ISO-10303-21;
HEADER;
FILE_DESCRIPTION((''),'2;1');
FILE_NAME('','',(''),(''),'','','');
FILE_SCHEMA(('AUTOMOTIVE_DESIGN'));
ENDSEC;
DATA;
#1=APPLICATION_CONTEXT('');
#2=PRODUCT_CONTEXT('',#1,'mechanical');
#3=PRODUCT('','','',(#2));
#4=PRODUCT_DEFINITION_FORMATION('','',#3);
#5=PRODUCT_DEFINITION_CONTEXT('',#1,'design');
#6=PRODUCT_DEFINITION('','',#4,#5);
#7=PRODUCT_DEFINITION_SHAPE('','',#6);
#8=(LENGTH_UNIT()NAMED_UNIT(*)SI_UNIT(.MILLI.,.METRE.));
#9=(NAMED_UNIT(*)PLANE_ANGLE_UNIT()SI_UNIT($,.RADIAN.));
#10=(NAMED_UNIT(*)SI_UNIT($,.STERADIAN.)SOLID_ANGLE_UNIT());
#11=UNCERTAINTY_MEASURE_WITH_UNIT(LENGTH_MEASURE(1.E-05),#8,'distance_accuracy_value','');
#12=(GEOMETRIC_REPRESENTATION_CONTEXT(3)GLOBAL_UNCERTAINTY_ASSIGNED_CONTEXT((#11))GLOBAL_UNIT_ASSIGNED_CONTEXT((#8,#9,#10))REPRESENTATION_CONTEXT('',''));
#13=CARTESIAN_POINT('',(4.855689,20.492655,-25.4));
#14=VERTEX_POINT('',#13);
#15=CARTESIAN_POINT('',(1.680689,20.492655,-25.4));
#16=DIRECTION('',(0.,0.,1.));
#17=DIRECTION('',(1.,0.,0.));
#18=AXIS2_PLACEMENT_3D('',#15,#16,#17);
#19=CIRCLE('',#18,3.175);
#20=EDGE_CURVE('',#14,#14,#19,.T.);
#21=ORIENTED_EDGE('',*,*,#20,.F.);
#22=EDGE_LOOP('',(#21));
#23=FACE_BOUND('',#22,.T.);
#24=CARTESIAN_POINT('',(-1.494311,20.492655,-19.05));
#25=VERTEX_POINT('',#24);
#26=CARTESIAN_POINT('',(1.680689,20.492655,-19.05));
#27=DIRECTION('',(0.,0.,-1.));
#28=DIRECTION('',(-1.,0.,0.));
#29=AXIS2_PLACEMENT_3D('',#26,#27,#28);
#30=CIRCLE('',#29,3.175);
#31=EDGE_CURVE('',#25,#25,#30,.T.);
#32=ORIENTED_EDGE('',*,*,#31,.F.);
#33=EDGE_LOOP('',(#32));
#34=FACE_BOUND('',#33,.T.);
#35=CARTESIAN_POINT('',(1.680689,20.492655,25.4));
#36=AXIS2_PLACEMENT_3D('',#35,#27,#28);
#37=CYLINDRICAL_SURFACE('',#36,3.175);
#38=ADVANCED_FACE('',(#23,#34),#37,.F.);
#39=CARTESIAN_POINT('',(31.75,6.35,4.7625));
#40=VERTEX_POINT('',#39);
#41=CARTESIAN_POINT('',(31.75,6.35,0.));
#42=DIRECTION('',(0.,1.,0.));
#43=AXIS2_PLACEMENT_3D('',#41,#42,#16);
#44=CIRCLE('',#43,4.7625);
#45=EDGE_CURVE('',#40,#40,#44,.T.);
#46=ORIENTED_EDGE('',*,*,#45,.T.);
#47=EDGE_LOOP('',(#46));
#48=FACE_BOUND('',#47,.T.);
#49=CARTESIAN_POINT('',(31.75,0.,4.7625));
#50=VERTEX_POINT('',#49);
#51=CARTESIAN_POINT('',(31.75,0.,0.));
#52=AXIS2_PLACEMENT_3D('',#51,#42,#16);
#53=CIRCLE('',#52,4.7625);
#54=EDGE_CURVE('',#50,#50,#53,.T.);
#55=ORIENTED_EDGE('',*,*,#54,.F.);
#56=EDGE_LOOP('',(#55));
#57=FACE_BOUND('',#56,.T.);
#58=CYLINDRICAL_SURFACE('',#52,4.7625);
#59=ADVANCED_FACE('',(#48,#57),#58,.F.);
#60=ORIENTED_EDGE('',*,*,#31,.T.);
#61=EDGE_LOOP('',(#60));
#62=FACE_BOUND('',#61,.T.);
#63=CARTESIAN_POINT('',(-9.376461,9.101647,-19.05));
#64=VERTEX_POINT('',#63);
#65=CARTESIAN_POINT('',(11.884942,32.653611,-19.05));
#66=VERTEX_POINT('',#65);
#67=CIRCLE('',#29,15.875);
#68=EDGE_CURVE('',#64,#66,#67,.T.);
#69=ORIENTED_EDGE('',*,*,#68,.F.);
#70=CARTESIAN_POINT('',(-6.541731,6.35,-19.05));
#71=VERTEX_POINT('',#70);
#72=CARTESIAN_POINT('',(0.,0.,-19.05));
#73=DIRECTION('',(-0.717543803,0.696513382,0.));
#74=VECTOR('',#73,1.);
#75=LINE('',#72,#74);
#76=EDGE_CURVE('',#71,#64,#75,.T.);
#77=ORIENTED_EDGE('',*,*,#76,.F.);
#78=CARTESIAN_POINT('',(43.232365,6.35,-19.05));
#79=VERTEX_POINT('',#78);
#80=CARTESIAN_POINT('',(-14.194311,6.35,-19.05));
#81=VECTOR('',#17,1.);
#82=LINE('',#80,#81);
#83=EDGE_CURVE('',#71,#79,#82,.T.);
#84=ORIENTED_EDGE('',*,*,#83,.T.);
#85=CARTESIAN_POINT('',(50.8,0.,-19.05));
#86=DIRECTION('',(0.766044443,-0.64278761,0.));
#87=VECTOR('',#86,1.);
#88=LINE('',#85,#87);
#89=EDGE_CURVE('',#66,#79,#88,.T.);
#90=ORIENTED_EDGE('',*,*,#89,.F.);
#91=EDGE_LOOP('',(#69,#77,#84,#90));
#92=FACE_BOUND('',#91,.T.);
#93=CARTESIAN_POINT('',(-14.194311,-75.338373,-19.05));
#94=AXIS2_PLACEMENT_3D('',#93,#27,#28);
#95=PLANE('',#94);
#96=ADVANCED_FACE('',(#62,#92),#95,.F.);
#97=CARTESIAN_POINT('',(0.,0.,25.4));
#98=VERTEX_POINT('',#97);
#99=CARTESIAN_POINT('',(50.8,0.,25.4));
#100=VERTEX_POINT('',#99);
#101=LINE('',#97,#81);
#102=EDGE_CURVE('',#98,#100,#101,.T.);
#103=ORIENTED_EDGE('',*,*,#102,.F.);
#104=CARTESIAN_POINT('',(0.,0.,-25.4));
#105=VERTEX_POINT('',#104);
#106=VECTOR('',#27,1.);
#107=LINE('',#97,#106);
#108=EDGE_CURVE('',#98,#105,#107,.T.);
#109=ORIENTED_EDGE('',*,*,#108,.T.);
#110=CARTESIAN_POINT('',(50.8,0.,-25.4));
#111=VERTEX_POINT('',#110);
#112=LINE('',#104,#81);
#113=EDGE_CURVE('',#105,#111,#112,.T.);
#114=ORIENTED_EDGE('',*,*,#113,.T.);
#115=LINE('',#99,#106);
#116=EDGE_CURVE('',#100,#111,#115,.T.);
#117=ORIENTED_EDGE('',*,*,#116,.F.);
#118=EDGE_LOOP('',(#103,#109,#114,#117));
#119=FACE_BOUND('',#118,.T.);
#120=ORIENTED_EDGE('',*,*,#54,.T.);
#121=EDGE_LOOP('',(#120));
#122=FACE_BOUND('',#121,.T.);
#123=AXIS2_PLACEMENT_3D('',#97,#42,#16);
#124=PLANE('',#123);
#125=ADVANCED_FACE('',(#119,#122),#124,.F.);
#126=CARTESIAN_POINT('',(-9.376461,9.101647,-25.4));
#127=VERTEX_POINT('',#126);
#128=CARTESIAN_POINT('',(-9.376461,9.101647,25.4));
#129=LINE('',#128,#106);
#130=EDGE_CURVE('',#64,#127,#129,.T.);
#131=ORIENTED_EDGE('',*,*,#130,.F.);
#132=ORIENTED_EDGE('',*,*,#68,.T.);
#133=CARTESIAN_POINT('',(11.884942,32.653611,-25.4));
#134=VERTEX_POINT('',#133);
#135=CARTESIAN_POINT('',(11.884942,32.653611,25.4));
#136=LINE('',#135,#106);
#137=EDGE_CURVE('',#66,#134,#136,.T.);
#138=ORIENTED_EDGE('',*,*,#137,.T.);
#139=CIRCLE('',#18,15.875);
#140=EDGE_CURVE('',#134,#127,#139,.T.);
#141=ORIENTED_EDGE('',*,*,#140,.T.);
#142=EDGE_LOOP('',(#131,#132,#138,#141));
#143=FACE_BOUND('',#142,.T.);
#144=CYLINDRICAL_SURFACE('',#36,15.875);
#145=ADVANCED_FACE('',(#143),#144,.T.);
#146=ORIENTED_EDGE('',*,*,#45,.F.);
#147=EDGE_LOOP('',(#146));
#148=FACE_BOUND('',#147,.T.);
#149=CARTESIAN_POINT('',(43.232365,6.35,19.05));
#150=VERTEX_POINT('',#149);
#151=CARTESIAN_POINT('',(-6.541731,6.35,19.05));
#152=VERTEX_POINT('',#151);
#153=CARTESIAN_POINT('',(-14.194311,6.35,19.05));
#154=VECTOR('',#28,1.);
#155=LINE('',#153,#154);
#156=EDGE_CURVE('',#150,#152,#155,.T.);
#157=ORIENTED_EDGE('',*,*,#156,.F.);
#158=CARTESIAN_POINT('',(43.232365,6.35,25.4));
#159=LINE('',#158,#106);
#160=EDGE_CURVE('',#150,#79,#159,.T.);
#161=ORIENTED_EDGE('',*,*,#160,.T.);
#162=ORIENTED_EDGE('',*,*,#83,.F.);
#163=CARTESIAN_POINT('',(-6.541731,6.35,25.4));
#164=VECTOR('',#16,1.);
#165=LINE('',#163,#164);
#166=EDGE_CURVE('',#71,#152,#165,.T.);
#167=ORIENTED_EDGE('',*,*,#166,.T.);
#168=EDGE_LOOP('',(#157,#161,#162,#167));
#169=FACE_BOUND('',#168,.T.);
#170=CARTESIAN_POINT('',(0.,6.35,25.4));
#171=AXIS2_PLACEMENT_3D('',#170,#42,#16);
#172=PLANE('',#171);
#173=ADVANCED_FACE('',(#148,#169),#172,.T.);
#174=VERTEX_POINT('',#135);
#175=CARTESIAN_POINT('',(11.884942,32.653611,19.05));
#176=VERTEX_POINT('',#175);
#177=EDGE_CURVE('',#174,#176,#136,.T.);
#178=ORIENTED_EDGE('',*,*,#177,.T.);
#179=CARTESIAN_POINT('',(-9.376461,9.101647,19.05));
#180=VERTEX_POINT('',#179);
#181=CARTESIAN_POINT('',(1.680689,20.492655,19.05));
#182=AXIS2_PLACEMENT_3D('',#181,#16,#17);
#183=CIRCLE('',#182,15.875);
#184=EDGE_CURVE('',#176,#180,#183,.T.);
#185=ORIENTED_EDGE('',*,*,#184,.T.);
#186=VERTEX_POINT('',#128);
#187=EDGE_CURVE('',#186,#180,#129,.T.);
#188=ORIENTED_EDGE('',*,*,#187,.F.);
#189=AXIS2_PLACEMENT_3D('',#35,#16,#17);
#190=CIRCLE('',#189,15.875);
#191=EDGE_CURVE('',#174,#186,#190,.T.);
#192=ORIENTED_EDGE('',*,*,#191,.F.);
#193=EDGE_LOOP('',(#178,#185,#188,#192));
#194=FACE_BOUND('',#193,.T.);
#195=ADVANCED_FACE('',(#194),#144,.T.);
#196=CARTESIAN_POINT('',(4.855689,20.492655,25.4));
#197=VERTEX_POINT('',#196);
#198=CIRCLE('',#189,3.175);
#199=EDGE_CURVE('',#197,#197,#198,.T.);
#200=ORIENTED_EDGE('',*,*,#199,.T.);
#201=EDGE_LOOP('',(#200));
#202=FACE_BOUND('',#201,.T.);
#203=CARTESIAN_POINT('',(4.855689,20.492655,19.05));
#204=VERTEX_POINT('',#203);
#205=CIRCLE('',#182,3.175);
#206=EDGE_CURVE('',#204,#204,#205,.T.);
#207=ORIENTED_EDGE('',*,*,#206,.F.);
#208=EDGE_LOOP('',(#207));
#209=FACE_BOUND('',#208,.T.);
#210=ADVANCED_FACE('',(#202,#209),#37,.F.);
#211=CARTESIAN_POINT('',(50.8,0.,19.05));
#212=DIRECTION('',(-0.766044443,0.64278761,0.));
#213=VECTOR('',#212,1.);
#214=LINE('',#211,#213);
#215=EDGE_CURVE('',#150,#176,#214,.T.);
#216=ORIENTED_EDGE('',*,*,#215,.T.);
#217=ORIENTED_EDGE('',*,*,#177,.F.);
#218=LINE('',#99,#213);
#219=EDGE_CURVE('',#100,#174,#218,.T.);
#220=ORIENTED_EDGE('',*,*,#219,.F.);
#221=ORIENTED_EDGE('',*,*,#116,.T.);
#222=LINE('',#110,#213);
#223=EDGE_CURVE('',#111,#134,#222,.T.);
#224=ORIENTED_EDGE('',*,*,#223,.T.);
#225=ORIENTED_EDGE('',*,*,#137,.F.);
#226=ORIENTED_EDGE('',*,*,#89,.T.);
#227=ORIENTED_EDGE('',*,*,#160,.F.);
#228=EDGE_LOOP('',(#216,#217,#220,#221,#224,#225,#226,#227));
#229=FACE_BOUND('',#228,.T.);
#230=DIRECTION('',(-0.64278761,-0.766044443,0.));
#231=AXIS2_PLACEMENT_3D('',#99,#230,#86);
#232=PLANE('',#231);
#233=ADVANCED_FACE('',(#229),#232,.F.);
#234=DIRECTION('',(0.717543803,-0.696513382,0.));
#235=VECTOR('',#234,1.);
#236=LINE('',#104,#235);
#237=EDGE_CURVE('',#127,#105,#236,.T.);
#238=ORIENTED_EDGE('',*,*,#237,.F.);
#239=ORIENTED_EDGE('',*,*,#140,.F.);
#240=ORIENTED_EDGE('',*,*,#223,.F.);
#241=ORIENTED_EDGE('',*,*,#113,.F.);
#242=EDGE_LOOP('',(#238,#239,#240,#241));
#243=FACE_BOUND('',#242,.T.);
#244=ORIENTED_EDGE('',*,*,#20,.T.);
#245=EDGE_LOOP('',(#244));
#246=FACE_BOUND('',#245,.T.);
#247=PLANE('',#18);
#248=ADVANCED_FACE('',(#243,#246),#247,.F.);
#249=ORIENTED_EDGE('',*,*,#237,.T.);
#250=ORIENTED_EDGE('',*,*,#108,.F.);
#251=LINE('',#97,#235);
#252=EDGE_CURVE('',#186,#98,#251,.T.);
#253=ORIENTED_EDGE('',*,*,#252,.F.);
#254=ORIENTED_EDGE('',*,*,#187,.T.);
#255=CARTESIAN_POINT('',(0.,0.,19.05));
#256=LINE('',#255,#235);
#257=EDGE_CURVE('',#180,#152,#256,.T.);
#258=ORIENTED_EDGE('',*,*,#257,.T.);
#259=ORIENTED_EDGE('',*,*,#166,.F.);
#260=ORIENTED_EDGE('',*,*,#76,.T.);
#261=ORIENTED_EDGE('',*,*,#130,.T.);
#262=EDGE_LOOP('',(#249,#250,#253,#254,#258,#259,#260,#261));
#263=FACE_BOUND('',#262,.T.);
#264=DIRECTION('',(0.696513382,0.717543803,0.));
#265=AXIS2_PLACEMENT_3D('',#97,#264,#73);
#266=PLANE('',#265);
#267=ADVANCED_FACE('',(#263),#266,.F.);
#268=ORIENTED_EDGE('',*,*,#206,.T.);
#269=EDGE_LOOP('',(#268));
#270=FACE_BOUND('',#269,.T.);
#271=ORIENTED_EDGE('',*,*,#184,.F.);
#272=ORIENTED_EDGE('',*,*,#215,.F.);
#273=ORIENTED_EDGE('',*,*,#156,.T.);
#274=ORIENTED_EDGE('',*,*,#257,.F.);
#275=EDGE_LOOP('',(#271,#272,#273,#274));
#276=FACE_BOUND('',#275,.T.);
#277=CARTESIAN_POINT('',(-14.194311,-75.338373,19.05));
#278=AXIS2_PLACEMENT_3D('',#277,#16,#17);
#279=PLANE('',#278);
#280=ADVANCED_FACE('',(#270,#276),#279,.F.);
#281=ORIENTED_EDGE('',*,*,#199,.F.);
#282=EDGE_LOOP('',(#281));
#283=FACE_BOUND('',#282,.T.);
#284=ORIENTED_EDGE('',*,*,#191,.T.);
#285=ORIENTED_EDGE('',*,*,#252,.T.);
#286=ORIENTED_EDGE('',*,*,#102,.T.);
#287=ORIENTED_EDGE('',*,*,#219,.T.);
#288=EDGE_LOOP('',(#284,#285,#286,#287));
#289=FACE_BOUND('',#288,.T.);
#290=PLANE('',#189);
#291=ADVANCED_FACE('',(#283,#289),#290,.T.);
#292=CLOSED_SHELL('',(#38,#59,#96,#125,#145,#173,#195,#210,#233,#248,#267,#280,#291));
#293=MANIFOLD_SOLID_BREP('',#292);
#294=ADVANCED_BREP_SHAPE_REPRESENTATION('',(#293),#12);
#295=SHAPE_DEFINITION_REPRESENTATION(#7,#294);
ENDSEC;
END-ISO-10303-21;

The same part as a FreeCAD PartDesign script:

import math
import FreeCAD as App
import Part
import Sketcher

V = App.Vector
Q = App.Units.Quantity


def add_polygon(sketch, points):
    """Adds a closed chain of lines whose ends are joined by coincident constraints."""
    first, n = sketch.GeometryCount, len(points)
    for a, b in zip(points, points[1:] + points[:1]):
        sketch.addGeometry(Part.LineSegment(App.Vector(*a, 0), App.Vector(*b, 0)), False)
    for i in range(n):
        sketch.addConstraint(Sketcher.Constraint("Coincident", first + i, 2, first + (i + 1) % n, 1))

doc = App.newDocument("Part")
body = doc.addObject("PartDesign::Body", "Body")

sketch1 = body.newObject("Sketcher::SketchObject", "Sketch")
sketch1.AttachmentSupport = (doc.getObject("XY_Plane"), [""])
sketch1.MapMode = "FlatFace"
sketch1.addGeometry(Part.LineSegment(V(-9.4, 9.1, 0), V(0, 0, 0)), False)
sketch1.addGeometry(Part.LineSegment(V(0, 0, 0), V(50.8, 0, 0)), False)
sketch1.addGeometry(Part.LineSegment(V(50.8, 0, 0), V(11.9, 32.7, 0)), False)
sketch1.addGeometry(Part.ArcOfCircle(Part.Circle(V(1.7, 20.5, 0), V(0, 0, 1), 15.9), math.radians(50), math.radians(226)), False)
sketch1.addGeometry(Part.Circle(V(1.7, 20.5, 0), V(0, 0, 1), 3.2), False)
sketch1.addConstraint(Sketcher.Constraint("Coincident", 0, 2, 1, 1))
sketch1.addConstraint(Sketcher.Constraint("Coincident", 1, 2, 2, 1))
sketch1.addConstraint(Sketcher.Constraint("Tangent", 2, 2, 3, 1))
sketch1.addConstraint(Sketcher.Constraint("Tangent", 3, 2, 0, 1))
sketch1.addConstraint(Sketcher.Constraint("Horizontal", 1))
sketch1.addConstraint(Sketcher.Constraint("Coincident", 0, 2, -1, 1))
sketch1.addConstraint(Sketcher.Constraint("Coincident", 4, 3, 3, 3))
sketch1.addConstraint(Sketcher.Constraint("Diameter", 4, Q("0.25 in")))
sketch1.addConstraint(Sketcher.Constraint("DistanceX", 1, 1, 1, 2, Q("2 in")))
sketch1.addConstraint(Sketcher.Constraint("Distance", 2, Q("2 in")))
sketch1.addConstraint(Sketcher.Constraint("Angle", 2, Q("140 deg")))
sketch1.addConstraint(Sketcher.Constraint("Radius", 3, Q("0.625 in")))
pad1 = body.newObject("PartDesign::Pad", "Pad")
pad1.Profile = sketch1
pad1.Length = Q("2 in")
pad1.Midplane = True

sketch2 = body.newObject("Sketcher::SketchObject", "Sketch001")
sketch2.AttachmentSupport = (doc.getObject("XZ_Plane"), [""])
sketch2.MapMode = "FlatFace"
sketch2.AttachmentOffset = App.Placement(V(0, 0, -2 * 25.4), App.Rotation())
add_polygon(sketch2, [(-14, -19), (-14, 19), (51, 19), (51, -19)])
sketch2.addConstraint(Sketcher.Constraint("Vertical", 0))
sketch2.addConstraint(Sketcher.Constraint("Horizontal", 1))
sketch2.addConstraint(Sketcher.Constraint("Vertical", 2))
sketch2.addConstraint(Sketcher.Constraint("Horizontal", 3))
sketch2.addConstraint(Sketcher.Constraint("DistanceY", 0, 1, 0, 2, Q("1.5 in")))
sketch2.addConstraint(Sketcher.Constraint("DistanceX", -1, 1, 1, 2, Q("2 in")))
sketch2.addConstraint(Sketcher.Constraint("DistanceY", -1, 1, 0, 2, Q("0.75 in")))
sketch2.addConstraint(Sketcher.Constraint("DistanceX", 1, 1, 1, 2, Q("64.994311 mm")))
pocket1 = body.newObject("PartDesign::Pocket", "Pocket")
pocket1.Profile = sketch2
pocket1.Length = Q("1.75 in")
pocket1.Reversed = True

sketch3 = body.newObject("Sketcher::SketchObject", "Sketch002")
sketch3.AttachmentSupport = (doc.getObject("XZ_Plane"), [""])
sketch3.MapMode = "FlatFace"
sketch3.AttachmentOffset = App.Placement(V(0, 0, -0.25 * 25.4), App.Rotation())
sketch3.addGeometry(Part.Circle(V(31.8, 0, 0), V(0, 0, 1), 4.8), False)
sketch3.addConstraint(Sketcher.Constraint("PointOnObject", 0, 3, -1))
sketch3.addConstraint(Sketcher.Constraint("Diameter", 0, Q("0.375 in")))
sketch3.addConstraint(Sketcher.Constraint("DistanceX", -1, 1, 0, 3, Q("1.25 in")))
pocket2 = body.newObject("PartDesign::Pocket", "Pocket001")
pocket2.Profile = sketch3
pocket2.Type = "ThroughAll"
pocket2.Reversed = True

doc.recompute()
